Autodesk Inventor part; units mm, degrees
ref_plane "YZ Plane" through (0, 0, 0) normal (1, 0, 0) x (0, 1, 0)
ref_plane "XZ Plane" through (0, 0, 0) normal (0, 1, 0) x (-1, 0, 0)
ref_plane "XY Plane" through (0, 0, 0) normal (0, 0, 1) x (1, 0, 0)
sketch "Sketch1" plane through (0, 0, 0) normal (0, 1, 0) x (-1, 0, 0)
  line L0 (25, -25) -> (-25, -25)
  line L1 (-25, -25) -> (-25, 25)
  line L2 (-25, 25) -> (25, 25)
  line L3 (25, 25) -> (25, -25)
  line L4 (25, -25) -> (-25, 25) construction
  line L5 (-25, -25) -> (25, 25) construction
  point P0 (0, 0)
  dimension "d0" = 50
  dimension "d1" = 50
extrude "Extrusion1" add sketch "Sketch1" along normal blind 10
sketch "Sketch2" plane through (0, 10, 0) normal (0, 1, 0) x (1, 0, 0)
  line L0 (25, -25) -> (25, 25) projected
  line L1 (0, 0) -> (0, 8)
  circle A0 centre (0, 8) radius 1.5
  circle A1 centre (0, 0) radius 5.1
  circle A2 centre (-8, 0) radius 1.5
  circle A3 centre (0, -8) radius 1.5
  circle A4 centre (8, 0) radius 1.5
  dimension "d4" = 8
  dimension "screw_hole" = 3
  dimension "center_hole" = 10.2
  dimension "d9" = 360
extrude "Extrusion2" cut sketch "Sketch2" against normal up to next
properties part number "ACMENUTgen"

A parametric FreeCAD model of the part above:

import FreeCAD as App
import Part
import Sketcher
from FreeCAD import Vector


def add_polygon(sketch, points):
    """Adds a closed chain of lines whose ends are joined by coincident constraints."""
    first, n = sketch.GeometryCount, len(points)
    for a, b in zip(points, points[1:] + points[:1]):
        sketch.addGeometry(Part.LineSegment(App.Vector(*a, 0), App.Vector(*b, 0)), False)
    for i in range(n):
        sketch.addConstraint(Sketcher.Constraint("Coincident", first + i, 2, first + (i + 1) % n, 1))

doc = App.newDocument("Part")
body = doc.addObject("PartDesign::Body", "Body")

# Sketch on XZ plane
sketch1 = body.newObject("Sketcher::SketchObject", "Sketch")
sketch1.AttachmentSupport = (doc.getObject("XZ_Plane"), [""])
sketch1.MapMode = "FlatFace"
add_polygon(sketch1, [(25, -25), (-25, -25), (-25, 25), (25, 25)])  # lines 0-3
sketch1.addConstraint([
    Sketcher.Constraint("Horizontal", 0),
    Sketcher.Constraint("Vertical", 1),
    Sketcher.Constraint("Horizontal", 2),
    Sketcher.Constraint("Vertical", 3),
    Sketcher.Constraint("Symmetric", 0, 2, 2, 2, -1, 1),
    Sketcher.Constraint("Equal", 2, 1),
    Sketcher.Constraint("DistanceX", 0, 2, 0, 1, 50.0),
])
pad1 = body.newObject("PartDesign::Pad", "Pad")
pad1.Profile = sketch1
pad1.Length = 10
pad1.Reversed = True

# Sketch on XZ plane
sketch2 = body.newObject("Sketcher::SketchObject", "Sketch001")
sketch2.AttachmentSupport = (doc.getObject("XZ_Plane"), [""])
sketch2.MapMode = "FlatFace"
sketch2.AttachmentOffset = App.Placement(Vector(0, 0, -10), App.Rotation())
sketch2.addGeometry([
    Part.Circle(Vector(0, -8, 0), Vector(0, 0, 1), 1.5),  # 0
    Part.Circle(Vector(0, 0, 0), Vector(0, 0, 1), 5.1),  # 1
    Part.Circle(Vector(-8, 0, 0), Vector(0, 0, 1), 1.5),  # 2
    Part.Circle(Vector(0, 8, 0), Vector(0, 0, 1), 1.5),  # 3
    Part.Circle(Vector(8, 0, 0), Vector(0, 0, 1), 1.5),  # 4
], False)
sketch2.addConstraint([
    Sketcher.Constraint("Coincident", 1, 3, -1, 1),
    Sketcher.Constraint("Equal", 0, 2),
    Sketcher.Constraint("Equal", 2, 3),
    Sketcher.Constraint("Equal", 3, 4),
    Sketcher.Constraint("Symmetric", 0, 3, 3, 3, -1, 1),
    Sketcher.Constraint("Symmetric", 2, 3, 4, 3, -1, 1),
    Sketcher.Constraint("PointOnObject", 0, 3, -2),
    Sketcher.Constraint("PointOnObject", 2, 3, -1),
    Sketcher.Constraint("Diameter", 0, 3.0),
    Sketcher.Constraint("Diameter", 1, 10.2),
    Sketcher.Constraint("DistanceY", 0, 3, -1, 1, 8.0),
    Sketcher.Constraint("DistanceX", 2, 3, -1, 1, 8.0),
])
pocket1 = body.newObject("PartDesign::Pocket", "Pocket")
pocket1.Profile = sketch2
pocket1.Type = "UpToFirst"
pocket1.Reversed = True

doc.recompute()
